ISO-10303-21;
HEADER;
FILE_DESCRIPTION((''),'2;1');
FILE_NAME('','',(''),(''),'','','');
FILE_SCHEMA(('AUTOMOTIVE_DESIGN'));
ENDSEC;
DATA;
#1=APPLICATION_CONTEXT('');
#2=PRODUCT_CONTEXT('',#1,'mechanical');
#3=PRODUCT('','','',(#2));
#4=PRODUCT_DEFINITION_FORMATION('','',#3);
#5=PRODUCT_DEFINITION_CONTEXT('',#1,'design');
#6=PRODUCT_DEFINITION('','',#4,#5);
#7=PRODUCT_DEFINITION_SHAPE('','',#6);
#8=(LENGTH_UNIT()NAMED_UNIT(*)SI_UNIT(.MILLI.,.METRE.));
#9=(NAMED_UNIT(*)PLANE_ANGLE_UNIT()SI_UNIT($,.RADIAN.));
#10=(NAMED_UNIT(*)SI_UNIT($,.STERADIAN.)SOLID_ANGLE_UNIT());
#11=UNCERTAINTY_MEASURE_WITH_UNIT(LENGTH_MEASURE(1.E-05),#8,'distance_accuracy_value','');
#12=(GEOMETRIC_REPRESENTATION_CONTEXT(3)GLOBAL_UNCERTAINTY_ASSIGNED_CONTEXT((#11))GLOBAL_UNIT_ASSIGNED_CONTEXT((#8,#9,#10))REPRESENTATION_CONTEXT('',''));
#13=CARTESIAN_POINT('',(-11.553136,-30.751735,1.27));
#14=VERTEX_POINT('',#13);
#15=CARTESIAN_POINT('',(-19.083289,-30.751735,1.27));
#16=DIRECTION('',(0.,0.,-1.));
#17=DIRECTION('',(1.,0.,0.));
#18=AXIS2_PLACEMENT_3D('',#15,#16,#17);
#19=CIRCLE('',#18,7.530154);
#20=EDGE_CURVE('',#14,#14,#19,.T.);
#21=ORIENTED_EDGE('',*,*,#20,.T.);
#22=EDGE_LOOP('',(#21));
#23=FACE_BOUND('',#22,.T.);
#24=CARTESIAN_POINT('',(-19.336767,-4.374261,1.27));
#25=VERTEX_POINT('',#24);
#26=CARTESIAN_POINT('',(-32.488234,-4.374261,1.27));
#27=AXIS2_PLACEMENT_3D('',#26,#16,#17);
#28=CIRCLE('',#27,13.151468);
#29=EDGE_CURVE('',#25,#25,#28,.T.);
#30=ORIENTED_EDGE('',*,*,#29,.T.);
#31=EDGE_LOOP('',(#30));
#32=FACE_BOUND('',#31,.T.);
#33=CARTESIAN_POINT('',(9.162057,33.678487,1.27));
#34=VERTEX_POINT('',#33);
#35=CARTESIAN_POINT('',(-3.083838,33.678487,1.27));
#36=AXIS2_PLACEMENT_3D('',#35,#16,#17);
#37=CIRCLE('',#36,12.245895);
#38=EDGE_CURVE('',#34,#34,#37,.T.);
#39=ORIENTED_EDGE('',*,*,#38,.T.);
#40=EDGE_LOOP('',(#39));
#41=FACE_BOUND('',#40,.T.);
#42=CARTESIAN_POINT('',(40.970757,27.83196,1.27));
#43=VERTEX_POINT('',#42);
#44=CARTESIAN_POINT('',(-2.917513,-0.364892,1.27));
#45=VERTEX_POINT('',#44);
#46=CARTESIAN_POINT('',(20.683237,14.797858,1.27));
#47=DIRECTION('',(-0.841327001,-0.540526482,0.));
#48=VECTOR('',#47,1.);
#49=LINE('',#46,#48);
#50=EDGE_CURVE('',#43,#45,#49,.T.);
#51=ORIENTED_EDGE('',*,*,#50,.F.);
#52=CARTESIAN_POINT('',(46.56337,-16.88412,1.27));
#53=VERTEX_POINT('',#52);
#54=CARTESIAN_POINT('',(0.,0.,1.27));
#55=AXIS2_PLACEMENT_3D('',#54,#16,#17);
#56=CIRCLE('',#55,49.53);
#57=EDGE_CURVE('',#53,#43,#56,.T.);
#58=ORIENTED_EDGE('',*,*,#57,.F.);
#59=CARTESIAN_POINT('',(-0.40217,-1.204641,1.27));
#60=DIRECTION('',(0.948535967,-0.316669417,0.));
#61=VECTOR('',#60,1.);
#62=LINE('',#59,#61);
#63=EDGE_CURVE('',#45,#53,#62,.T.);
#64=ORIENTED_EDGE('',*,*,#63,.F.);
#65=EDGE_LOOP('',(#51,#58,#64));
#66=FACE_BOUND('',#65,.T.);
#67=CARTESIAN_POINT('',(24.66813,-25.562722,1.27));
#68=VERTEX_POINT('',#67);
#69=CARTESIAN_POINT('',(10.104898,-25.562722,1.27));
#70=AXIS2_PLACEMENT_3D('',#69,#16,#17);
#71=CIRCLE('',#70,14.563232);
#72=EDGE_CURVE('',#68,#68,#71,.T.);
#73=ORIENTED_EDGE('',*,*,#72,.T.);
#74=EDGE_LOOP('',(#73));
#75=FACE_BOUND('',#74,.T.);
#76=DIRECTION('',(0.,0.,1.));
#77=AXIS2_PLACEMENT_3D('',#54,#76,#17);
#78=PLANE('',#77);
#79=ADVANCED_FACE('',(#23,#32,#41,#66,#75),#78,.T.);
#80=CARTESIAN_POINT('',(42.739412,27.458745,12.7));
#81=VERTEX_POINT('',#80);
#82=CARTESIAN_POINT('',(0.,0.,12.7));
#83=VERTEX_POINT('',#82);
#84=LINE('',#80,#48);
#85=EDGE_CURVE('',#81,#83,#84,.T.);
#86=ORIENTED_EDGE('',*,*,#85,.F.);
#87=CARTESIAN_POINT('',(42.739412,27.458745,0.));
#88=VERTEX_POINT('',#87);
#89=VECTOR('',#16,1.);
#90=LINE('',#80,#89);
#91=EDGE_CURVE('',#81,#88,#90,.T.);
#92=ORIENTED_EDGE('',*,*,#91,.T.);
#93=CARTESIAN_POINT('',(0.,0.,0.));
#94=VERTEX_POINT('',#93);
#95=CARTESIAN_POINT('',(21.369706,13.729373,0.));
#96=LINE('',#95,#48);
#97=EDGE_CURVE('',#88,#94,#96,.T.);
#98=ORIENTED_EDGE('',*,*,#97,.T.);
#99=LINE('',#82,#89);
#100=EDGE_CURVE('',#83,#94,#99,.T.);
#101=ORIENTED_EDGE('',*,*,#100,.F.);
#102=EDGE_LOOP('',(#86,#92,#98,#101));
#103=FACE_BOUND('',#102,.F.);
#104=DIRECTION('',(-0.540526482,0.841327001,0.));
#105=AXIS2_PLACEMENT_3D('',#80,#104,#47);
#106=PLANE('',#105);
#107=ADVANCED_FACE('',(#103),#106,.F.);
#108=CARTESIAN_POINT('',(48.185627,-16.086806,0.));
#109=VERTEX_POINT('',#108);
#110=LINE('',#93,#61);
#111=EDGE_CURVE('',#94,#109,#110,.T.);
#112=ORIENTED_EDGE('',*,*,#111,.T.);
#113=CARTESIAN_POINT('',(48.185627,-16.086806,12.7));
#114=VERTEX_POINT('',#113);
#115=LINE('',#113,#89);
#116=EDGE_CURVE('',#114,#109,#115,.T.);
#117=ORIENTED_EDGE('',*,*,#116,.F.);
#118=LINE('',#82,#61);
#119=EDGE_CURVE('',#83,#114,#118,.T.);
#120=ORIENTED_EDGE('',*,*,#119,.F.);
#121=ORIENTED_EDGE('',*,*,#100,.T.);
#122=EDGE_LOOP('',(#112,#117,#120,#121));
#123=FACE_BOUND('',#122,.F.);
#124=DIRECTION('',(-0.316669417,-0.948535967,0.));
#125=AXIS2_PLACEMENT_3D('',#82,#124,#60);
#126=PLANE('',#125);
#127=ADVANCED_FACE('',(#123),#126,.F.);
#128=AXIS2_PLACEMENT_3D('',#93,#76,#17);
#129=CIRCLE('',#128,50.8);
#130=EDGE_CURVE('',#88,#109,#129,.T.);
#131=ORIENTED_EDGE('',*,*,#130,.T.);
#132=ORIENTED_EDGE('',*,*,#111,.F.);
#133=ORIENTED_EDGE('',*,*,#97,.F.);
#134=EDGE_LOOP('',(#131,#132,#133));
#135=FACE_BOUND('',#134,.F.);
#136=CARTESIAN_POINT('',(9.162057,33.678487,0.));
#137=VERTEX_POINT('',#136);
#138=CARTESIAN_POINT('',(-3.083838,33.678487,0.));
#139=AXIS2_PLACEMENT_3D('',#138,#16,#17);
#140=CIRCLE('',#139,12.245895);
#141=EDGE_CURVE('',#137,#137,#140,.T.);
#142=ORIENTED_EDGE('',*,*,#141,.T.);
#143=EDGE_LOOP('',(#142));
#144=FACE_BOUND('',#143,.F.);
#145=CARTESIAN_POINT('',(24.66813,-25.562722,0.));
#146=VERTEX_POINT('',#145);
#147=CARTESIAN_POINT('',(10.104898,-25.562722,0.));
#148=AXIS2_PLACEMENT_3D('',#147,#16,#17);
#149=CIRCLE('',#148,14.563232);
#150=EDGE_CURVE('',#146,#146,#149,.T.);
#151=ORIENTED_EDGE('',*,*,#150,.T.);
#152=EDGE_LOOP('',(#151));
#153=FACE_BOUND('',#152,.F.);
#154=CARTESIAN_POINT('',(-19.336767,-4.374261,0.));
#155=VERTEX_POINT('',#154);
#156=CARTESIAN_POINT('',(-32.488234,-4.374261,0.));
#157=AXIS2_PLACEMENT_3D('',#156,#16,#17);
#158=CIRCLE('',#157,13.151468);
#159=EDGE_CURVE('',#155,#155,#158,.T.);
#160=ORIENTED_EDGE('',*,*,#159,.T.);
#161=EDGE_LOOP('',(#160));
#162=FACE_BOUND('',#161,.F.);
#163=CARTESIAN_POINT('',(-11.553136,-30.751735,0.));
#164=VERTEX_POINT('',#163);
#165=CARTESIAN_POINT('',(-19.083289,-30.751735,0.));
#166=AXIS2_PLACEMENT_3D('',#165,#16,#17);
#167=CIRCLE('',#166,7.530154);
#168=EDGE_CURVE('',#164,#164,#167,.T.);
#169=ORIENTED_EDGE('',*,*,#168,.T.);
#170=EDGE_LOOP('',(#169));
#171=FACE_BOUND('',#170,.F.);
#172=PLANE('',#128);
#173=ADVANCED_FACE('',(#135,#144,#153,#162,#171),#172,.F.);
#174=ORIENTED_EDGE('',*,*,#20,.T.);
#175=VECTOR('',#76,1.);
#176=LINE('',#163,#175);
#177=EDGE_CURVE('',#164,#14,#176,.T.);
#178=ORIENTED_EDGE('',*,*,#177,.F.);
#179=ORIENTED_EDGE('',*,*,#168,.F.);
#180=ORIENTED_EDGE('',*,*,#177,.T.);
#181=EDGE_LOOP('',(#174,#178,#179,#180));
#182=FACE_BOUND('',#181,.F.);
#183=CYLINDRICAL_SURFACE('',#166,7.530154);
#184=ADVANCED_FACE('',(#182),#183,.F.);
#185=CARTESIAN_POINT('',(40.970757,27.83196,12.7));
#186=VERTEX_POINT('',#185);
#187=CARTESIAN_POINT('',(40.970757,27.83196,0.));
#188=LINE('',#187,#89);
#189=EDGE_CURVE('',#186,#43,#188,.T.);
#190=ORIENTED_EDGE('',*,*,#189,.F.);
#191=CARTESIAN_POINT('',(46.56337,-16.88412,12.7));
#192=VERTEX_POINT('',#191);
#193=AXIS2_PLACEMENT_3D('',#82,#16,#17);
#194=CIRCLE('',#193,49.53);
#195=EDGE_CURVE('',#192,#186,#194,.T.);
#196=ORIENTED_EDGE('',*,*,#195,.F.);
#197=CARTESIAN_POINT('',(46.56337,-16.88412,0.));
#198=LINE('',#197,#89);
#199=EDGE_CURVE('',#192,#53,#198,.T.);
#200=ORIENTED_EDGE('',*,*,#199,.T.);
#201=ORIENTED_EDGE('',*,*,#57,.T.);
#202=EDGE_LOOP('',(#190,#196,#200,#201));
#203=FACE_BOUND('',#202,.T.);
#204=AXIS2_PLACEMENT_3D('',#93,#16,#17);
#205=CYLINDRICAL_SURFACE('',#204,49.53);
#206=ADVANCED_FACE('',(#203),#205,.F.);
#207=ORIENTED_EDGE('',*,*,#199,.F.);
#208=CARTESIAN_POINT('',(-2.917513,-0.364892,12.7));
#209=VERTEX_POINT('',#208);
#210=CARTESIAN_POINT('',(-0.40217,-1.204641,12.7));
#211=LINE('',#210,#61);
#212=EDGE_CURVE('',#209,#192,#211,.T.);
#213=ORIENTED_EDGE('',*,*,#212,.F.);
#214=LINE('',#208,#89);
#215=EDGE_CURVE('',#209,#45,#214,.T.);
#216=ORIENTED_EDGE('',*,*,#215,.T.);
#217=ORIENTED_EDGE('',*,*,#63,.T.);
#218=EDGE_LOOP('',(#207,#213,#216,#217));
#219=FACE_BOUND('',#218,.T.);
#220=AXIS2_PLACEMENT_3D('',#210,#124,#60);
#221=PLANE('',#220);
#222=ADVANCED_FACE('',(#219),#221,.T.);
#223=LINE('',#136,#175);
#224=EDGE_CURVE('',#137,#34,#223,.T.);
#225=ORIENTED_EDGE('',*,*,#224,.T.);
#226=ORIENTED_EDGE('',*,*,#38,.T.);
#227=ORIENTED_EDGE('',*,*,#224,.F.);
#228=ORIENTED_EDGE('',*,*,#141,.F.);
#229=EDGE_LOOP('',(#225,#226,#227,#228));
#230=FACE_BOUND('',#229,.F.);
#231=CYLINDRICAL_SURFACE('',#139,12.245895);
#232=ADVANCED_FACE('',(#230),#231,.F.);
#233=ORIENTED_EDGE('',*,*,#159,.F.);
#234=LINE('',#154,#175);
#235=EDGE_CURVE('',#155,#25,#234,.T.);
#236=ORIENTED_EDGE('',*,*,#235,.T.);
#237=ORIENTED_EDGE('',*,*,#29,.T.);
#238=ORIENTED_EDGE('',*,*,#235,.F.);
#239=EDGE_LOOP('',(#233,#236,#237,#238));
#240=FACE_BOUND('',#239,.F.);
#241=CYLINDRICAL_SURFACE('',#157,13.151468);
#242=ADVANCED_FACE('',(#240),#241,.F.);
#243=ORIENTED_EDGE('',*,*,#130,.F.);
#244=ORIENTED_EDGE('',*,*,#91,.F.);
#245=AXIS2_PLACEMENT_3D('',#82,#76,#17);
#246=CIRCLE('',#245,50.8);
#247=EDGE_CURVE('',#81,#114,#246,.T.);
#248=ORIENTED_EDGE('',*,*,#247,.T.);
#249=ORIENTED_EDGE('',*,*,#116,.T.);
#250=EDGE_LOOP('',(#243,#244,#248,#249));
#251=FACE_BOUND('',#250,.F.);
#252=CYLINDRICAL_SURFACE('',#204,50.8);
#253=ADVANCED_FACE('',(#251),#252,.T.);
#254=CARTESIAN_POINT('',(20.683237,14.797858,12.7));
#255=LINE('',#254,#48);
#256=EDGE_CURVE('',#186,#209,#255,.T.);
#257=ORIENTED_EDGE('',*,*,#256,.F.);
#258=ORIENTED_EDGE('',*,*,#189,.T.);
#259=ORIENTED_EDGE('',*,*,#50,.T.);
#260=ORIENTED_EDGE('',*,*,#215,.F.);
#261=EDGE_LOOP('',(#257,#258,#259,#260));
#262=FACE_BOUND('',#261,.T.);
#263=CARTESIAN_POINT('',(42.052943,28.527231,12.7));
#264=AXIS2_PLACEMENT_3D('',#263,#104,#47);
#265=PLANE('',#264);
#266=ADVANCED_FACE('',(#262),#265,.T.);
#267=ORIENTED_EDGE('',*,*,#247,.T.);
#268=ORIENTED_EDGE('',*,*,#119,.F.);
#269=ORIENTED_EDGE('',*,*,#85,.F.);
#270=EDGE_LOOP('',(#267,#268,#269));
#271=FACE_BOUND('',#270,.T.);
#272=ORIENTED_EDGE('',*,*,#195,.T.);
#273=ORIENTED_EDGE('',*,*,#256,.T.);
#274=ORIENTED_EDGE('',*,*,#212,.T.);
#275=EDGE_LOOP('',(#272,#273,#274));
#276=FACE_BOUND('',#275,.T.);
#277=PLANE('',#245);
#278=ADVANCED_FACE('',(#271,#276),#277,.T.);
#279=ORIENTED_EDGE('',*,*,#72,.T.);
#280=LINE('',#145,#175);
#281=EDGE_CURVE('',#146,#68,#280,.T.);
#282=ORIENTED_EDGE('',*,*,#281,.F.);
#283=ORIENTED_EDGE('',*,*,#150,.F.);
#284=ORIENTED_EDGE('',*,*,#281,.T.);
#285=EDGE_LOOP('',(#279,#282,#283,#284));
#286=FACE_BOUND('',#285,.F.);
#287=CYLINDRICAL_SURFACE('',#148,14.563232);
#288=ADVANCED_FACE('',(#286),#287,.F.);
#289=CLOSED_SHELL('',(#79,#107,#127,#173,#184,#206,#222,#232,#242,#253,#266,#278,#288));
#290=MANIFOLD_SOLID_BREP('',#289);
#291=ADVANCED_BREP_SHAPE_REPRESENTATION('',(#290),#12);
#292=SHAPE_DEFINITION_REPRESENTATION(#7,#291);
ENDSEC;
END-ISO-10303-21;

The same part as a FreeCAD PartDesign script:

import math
import FreeCAD as App
import Part
import Sketcher

V = App.Vector
Q = App.Units.Quantity


def faces_at(feature, points):
    """Names of the faces that lie closest to the given points."""
    faces = feature.Shape.Faces
    near = lambda p: min(range(len(faces)), key=lambda i: faces[i].distToShape(Part.Vertex(*p))[0])
    return sorted({f"Face{near(p) + 1}" for p in points})

doc = App.newDocument("Part")
body = doc.addObject("PartDesign::Body", "Body")

sketch1 = body.newObject("Sketcher::SketchObject", "Sketch")
sketch1.AttachmentSupport = (doc.getObject("XY_Plane"), [""])
sketch1.MapMode = "FlatFace"
sketch1.addGeometry(Part.Circle(V(0, 0, 0), V(0, 0, 1), 50.8), False)
sketch1.addConstraint(Sketcher.Constraint("Coincident", 0, 3, -1, 1))
sketch1.addConstraint(Sketcher.Constraint("Diameter", 0, Q("4 in")))
pad1 = body.newObject("PartDesign::Pad", "Pad")
pad1.Profile = sketch1
pad1.Length = Q("0.5 in")

sketch2 = body.newObject("Sketcher::SketchObject", "Sketch001")
sketch2.AttachmentSupport = (doc.getObject("XY_Plane"), [""])
sketch2.MapMode = "FlatFace"
sketch2.AttachmentOffset = App.Placement(V(0, 0, 0.5 * 25.4), App.Rotation())
sketch2.addGeometry(Part.LineSegment(V(42.739412, 27.458745, 0), V(0, 0, 0)), False)
sketch2.addGeometry(Part.LineSegment(V(0, 0, 0), V(48.185627, -16.086806, 0)), False)
sketch2.addGeometry(Part.ArcOfCircle(Part.Circle(V(0, 0, 0), V(0, 0, 1), 50.8), math.radians(-18.461624), math.radians(0)), False)
sketch2.addGeometry(Part.ArcOfCircle(Part.Circle(V(0, 0, 0), V(0, 0, 1), 50.8), math.radians(0), math.radians(32.719486)), False)
sketch2.addConstraint(Sketcher.Constraint("Coincident", 0, 2, 1, 1))
sketch2.addConstraint(Sketcher.Constraint("Coincident", 1, 2, 2, 1))
sketch2.addConstraint(Sketcher.Constraint("Tangent", 2, 2, 3, 1))
sketch2.addConstraint(Sketcher.Constraint("Coincident", 3, 2, 0, 1))
sketch2.addConstraint(Sketcher.Constraint("Coincident", 2, 3, -1, 1))
sketch2.addConstraint(Sketcher.Constraint("Coincident", 0, 2, -1, 1))
sketch2.addConstraint(Sketcher.Constraint("Equal", 2, 3))
sketch2.addConstraint(Sketcher.Constraint("PointOnObject", 2, 2, -1))
sketch2.addConstraint(Sketcher.Constraint("Radius", 2, Q("2 in")))
sketch2.addConstraint(Sketcher.Constraint("DistanceX", -1, 1, 3, 2, Q("42.739412 mm")))
sketch2.addConstraint(Sketcher.Constraint("DistanceY", 1, 2, 3, 2, Q("43.545552 mm")))
pocket1 = body.newObject("PartDesign::Pocket", "Pocket")
pocket1.Profile = sketch2
pocket1.Length = Q("1 in")
doc.recompute()

thickness = body.newObject("PartDesign::Thickness", "Thickness")
thickness.Base = (pocket1, faces_at(pocket1, [(-1.307, 0, 12.7)]))
thickness.Value = Q("0.05 in")
thickness.Reversed = True
thickness.Join = "Intersection"

sketch3 = body.newObject("Sketcher::SketchObject", "Sketch002")
sketch3.AttachmentSupport = (doc.getObject("XY_Plane"), [""])
sketch3.MapMode = "FlatFace"
sketch3.addGeometry(Part.Circle(V(-19.083289, -30.751735, 0), V(0, 0, 1), 7.530154), False)
sketch3.addGeometry(Part.Circle(V(10.104898, -25.562722, 0), V(0, 0, 1), 14.563232), False)
sketch3.addGeometry(Part.Circle(V(-3.083838, 33.678487, 0), V(0, 0, 1), 12.245895), False)
sketch3.addGeometry(Part.Circle(V(-32.488234, -4.374261, 0), V(0, 0, 1), 13.151468), False)
sketch3.addConstraint(Sketcher.Constraint("Diameter", 2, Q("24.49179 mm")))
sketch3.addConstraint(Sketcher.Constraint("Diameter", 0, Q("15.060307 mm")))
sketch3.addConstraint(Sketcher.Constraint("Diameter", 1, Q("29.126463 mm")))
sketch3.addConstraint(Sketcher.Constraint("Diameter", 3, Q("26.302935 mm")))
sketch3.addConstraint(Sketcher.Constraint("DistanceX", -1, 1, 1, 3, Q("10.104898 mm")))
sketch3.addConstraint(Sketcher.Constraint("DistanceX", 0, 3, -1, 1, Q("19.083289 mm")))
sketch3.addConstraint(Sketcher.Constraint("DistanceY", 3, 3, -1, 1, Q("4.374261 mm")))
sketch3.addConstraint(Sketcher.Constraint("DistanceY", 1, 3, 2, 3, Q("59.241209 mm")))
sketch3.addConstraint(Sketcher.Constraint("DistanceX", 0, 3, 2, 3, Q("15.999452 mm")))
sketch3.addConstraint(Sketcher.Constraint("DistanceY", 0, 3, 2, 3, Q("64.430222 mm")))
sketch3.addConstraint(Sketcher.Constraint("DistanceY", 1, 3, 3, 3, Q("21.188461 mm")))
sketch3.addConstraint(Sketcher.Constraint("DistanceX", 3, 3, -1, 1, Q("32.488234 mm")))
pocket2 = body.newObject("PartDesign::Pocket", "Pocket001")
pocket2.Profile = sketch3
pocket2.Length = Q("1 in")
pocket2.Reversed = True

doc.recompute()
